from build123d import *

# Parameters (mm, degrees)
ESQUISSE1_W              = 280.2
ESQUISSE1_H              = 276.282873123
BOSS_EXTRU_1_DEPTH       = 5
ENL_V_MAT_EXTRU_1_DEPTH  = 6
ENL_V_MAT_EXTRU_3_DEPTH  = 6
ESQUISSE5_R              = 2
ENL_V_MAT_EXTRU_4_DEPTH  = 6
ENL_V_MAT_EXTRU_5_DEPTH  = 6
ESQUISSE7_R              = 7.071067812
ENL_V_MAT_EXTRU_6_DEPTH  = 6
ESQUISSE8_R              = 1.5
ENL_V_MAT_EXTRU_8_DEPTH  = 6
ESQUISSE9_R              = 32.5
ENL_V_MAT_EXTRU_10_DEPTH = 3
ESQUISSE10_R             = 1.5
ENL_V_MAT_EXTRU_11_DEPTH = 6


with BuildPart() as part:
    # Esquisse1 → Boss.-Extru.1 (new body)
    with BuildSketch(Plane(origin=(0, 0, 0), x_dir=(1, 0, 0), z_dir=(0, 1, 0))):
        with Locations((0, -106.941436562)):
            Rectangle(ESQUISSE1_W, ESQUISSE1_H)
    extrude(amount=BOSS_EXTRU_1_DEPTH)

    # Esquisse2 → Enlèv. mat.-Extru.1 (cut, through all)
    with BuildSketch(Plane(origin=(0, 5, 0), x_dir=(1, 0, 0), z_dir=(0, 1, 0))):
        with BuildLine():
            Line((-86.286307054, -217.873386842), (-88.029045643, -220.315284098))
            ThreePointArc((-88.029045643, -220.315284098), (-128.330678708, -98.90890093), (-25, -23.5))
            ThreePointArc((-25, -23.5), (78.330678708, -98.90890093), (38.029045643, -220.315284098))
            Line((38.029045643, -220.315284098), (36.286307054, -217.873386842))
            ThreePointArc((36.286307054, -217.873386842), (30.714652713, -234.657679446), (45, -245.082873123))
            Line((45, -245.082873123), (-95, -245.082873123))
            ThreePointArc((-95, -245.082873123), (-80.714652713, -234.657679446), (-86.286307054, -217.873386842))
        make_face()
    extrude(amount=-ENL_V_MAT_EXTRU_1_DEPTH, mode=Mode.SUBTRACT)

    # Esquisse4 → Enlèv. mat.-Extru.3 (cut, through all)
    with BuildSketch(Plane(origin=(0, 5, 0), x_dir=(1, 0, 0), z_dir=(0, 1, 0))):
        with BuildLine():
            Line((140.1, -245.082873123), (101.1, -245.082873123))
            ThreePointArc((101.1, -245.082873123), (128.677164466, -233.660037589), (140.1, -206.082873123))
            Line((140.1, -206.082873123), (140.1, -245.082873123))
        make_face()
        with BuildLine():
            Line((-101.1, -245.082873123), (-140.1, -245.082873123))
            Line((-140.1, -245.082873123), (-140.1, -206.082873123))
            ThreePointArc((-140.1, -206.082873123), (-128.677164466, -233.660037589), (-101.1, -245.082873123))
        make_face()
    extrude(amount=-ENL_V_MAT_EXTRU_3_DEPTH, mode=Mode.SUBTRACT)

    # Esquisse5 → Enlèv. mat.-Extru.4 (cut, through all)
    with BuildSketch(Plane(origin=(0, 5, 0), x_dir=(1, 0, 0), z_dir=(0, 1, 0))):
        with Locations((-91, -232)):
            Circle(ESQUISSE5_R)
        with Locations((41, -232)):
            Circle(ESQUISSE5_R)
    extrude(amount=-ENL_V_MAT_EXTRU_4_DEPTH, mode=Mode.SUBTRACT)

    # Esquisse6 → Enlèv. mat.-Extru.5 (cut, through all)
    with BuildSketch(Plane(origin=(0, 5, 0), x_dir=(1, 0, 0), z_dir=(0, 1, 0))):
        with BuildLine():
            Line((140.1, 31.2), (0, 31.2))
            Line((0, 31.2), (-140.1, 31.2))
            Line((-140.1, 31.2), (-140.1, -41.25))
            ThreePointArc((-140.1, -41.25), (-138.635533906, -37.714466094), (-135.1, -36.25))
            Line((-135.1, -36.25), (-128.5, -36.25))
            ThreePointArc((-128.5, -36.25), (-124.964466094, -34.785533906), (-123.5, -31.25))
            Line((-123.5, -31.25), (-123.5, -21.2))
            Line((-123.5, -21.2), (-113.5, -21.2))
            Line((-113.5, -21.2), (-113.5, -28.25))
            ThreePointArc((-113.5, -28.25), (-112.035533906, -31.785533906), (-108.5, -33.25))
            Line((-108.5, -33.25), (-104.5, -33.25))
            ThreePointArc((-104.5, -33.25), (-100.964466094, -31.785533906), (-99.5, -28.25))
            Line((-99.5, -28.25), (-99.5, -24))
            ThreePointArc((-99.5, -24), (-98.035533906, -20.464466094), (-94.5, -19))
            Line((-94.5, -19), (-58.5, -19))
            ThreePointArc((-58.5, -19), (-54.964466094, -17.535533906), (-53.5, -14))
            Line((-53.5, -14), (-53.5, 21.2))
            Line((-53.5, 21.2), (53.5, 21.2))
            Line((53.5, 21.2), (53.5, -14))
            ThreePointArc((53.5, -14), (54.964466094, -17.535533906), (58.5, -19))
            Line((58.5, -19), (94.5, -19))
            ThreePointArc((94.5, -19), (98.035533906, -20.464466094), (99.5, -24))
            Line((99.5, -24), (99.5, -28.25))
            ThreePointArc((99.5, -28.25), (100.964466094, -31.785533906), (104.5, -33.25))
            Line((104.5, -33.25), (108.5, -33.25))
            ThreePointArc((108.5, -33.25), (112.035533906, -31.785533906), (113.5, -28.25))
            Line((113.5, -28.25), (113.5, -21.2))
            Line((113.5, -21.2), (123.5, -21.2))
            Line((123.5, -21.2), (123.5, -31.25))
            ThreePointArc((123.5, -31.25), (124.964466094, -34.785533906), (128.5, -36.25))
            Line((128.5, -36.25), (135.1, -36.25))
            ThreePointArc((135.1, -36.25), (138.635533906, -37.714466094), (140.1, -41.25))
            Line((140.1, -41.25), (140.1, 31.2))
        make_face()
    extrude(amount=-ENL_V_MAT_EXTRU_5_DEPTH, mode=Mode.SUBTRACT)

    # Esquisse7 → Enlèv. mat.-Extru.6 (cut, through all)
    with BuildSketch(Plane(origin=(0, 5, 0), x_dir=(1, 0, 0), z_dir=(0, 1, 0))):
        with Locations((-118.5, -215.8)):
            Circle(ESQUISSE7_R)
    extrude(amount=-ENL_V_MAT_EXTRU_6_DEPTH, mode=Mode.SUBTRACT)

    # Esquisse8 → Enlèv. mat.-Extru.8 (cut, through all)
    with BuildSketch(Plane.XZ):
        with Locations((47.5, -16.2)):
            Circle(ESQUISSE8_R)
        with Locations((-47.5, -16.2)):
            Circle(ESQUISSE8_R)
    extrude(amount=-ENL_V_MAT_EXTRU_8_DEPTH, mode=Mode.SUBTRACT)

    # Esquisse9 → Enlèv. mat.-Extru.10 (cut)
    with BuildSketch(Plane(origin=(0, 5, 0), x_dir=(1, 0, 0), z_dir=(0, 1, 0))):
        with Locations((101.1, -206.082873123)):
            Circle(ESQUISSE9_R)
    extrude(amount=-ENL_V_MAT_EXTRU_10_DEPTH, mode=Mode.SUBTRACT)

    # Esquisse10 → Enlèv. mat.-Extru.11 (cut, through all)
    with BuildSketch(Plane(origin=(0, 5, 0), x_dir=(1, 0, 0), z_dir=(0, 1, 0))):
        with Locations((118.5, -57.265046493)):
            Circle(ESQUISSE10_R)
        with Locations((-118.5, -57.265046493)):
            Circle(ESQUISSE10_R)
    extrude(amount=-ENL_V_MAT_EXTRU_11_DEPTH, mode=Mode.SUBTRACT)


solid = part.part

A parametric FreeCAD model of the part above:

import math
import FreeCAD as App
import Part
import Sketcher

V = App.Vector
Q = App.Units.Quantity


def add_polygon(sketch, points):
    """Adds a closed chain of lines whose ends are joined by coincident constraints."""
    first, n = sketch.GeometryCount, len(points)
    for a, b in zip(points, points[1:] + points[:1]):
        sketch.addGeometry(Part.LineSegment(App.Vector(*a, 0), App.Vector(*b, 0)), False)
    for i in range(n):
        sketch.addConstraint(Sketcher.Constraint("Coincident", first + i, 2, first + (i + 1) % n, 1))

doc = App.newDocument("Part")
params = doc.addObject("Spreadsheet::Sheet", "Params")
for row, (alias, value) in enumerate([
    ("sketch1_width", "280.2 mm"),
    ("pad1_length", "5 mm"),
    ("sketch2_radius", "15 mm"),
    ("sketch2_radius2", "108.5 mm"),
    ("sketch2_width", "140 mm"),
    ("sketch2_length", "3 mm"),
    ("sketch3_radius", "39 mm"),
    ("sketch4_diameter", "4 mm"),
    ("sketch5_radius", "5 mm"),
    ("sketch5_width", "10 mm"),
    ("sketch5_width2", "4 mm"),
    ("sketch5_width3", "36 mm"),
    ("sketch5_width4", "107 mm"),
    ("sketch7_diameter", "3 mm"),
    ("sketch8_diameter", "65 mm"),
    ("pocket7_length", "3 mm"),
    ("sketch9_diameter", "3 mm"),
], start=1):
    params.set(f"A{row}", alias)
    params.set(f"B{row}", "=" + value)
    params.setAlias(f"B{row}", alias)

body = doc.addObject("PartDesign::Body", "Body")

# Sketch on XZ plane
sketch1 = doc.addObject("Sketcher::SketchObject", "Sketch")
body.addObject(sketch1)
sketch1.AttachmentSupport = (doc.XZ_Plane, [""])
sketch1.MapMode = "FlatFace"
add_polygon(sketch1, [(-140.1, -31.2), (-140.1, 245.082873), (140.1, 245.082873), (140.1, -31.2)])  # lines 0-3
sketch1.addConstraint([
    Sketcher.Constraint("Vertical", 0),
    Sketcher.Constraint("Horizontal", 1),
    Sketcher.Constraint("Vertical", 2),
    Sketcher.Constraint("Horizontal", 3),
    Sketcher.Constraint("DistanceX", 1, 1, 1, 2, Q("280.2 mm")),
    Sketcher.Constraint("DistanceX", 0, 2, -1, 1, Q("140.1 mm")),
    Sketcher.Constraint("DistanceY", 2, 2, -1, 1, Q("31.2 mm")),
    Sketcher.Constraint("DistanceY", 0, 1, 0, 2, Q("276.282873 mm")),
])
sketch1.setExpression("Constraints[8]", "Params.sketch1_width")
pad1 = doc.addObject("PartDesign::Pad", "Pad")
body.addObject(pad1)
pad1.Profile = sketch1
pad1.setExpression("Length", "Params.pad1_length")
pad1.Reversed = True

# Sketch on XZ plane
sketch2 = doc.addObject("Sketcher::SketchObject", "Sketch001")
body.addObject(sketch2)
sketch2.AttachmentSupport = (doc.XZ_Plane, [""])
sketch2.MapMode = "FlatFace"
sketch2.AttachmentOffset = App.Placement(V(0, 0, -5), App.Rotation())
sketch2.addGeometry([
    Part.LineSegment(V(-88.029046, 220.315284, 0), V(-86.286307, 217.873387, 0)),  # 0
    Part.ArcOfCircle(Part.Circle(V(-95, 230.082873, 0), V(0, 0, 1), 15), math.radians(-54.485226), math.radians(90)),  # 1
    Part.LineSegment(V(-95, 245.082873, 0), V(45, 245.082873, 0)),  # 2
    Part.ArcOfCircle(Part.Circle(V(45, 230.082873, 0), V(0, 0, 1), 15), math.radians(90), math.radians(234.485226)),  # 3
    Part.LineSegment(V(36.286307, 217.873387, 0), V(38.029046, 220.315284, 0)),  # 4
    Part.ArcOfCircle(Part.Circle(V(-25, 132, 0), V(0, 0, 1), 108.5), math.radians(-90), math.radians(54.485226)),  # 5
    Part.ArcOfCircle(Part.Circle(V(-25, 132, 0), V(0, 0, 1), 108.5), math.radians(125.514774), math.radians(270)),  # 6
], False)
sketch2.addConstraint([
    Sketcher.Constraint("Coincident", 0, 2, 1, 1),
    Sketcher.Constraint("Tangent", 1, 2, 2, 1),
    Sketcher.Constraint("Tangent", 2, 2, 3, 1),
    Sketcher.Constraint("Coincident", 3, 2, 4, 1),
    Sketcher.Constraint("Coincident", 4, 2, 5, 2),
    Sketcher.Constraint("Tangent", 5, 1, 6, 2),
    Sketcher.Constraint("Coincident", 6, 1, 0, 1),
    Sketcher.Constraint("Horizontal", 2),
    Sketcher.Constraint("Equal", 1, 3),
    Sketcher.Constraint("Equal", 5, 6),
    Sketcher.Constraint("Horizontal", 0, 2, 3, 2),
    Sketcher.Constraint("Horizontal", 4, 2, 6, 1),
    Sketcher.Constraint("Vertical", 6, 3, 5, 1),
    Sketcher.Constraint("Equal", 0, 4),
    Sketcher.Constraint("Radius", 1, Q("15 mm")),
    Sketcher.Constraint("Radius", 5, Q("108.5 mm")),
    Sketcher.Constraint("DistanceX", 2, 1, 2, 2, Q("140 mm")),
    Sketcher.Constraint("Distance", 0, Q("3 mm")),
    Sketcher.Constraint("DistanceX", 1, 3, -1, 1, Q("95 mm")),
    Sketcher.Constraint("DistanceY", -1, 1, 5, 3, Q("132 mm")),
    Sketcher.Constraint("DistanceX", 3, 2, 4, 2, Q("1.742739 mm")),
    Sketcher.Constraint("DistanceY", 4, 2, 3, 3, Q("9.767589 mm")),
])
sketch2.setExpression("Constraints[14]", "Params.sketch2_radius")
sketch2.setExpression("Constraints[15]", "Params.sketch2_radius2")
sketch2.setExpression("Constraints[16]", "Params.sketch2_width")
sketch2.setExpression("Constraints[17]", "Params.sketch2_length")
pocket1 = doc.addObject("PartDesign::Pocket", "Pocket")
body.addObject(pocket1)
pocket1.Profile = sketch2
pocket1.Type = "ThroughAll"
pocket1.Reversed = True

# Sketch on XZ plane
sketch3 = doc.addObject("Sketcher::SketchObject", "Sketch002")
body.addObject(sketch3)
sketch3.AttachmentSupport = (doc.XZ_Plane, [""])
sketch3.MapMode = "FlatFace"
sketch3.AttachmentOffset = App.Placement(V(0, 0, -5), App.Rotation())
sketch3.addGeometry([
    Part.LineSegment(V(101.1, 245.082873, 0), V(140.1, 245.082873, 0)),  # 0
    Part.LineSegment(V(140.1, 245.082873, 0), V(140.1, 206.082873, 0)),  # 1
    Part.ArcOfCircle(Part.Circle(V(101.1, 206.082873, 0), V(0, 0, 1), 39), math.radians(0), math.radians(90)),  # 2
    Part.LineSegment(V(-140.1, 245.082873, 0), V(-101.1, 245.082873, 0)),  # 3
    Part.ArcOfCircle(Part.Circle(V(-101.1, 206.082873, 0), V(0, 0, 1), 39), math.radians(90), math.radians(180)),  # 4
    Part.LineSegment(V(-140.1, 206.082873, 0), V(-140.1, 245.082873, 0)),  # 5
], False)
sketch3.addConstraint([
    Sketcher.Constraint("Coincident", 0, 2, 1, 1),
    Sketcher.Constraint("Tangent", 1, 2, 2, 1),
    Sketcher.Constraint("Tangent", 2, 2, 0, 1),
    Sketcher.Constraint("Tangent", 3, 2, 4, 1),
    Sketcher.Constraint("Tangent", 4, 2, 5, 1),
    Sketcher.Constraint("Coincident", 5, 2, 3, 1),
    Sketcher.Constraint("Horizontal", 0),
    Sketcher.Constraint("Vertical", 1),
    Sketcher.Constraint("Horizontal", 3),
    Sketcher.Constraint("Vertical", 5),
    Sketcher.Constraint("Equal", 2, 4),
    Sketcher.Constraint("Symmetric", 2, 3, 4, 3, -2),
    Sketcher.Constraint("Radius", 2, Q("39 mm")),
    Sketcher.Constraint("DistanceX", -1, 1, 2, 3, Q("101.1 mm")),
    Sketcher.Constraint("DistanceY", -1, 1, 2, 3, Q("206.082873 mm")),
])
sketch3.setExpression("Constraints[12]", "Params.sketch3_radius")
pocket2 = doc.addObject("PartDesign::Pocket", "Pocket001")
body.addObject(pocket2)
pocket2.Profile = sketch3
pocket2.Type = "ThroughAll"
pocket2.Reversed = True

# Sketch on XZ plane
sketch4 = doc.addObject("Sketcher::SketchObject", "Sketch003")
body.addObject(sketch4)
sketch4.AttachmentSupport = (doc.XZ_Plane, [""])
sketch4.MapMode = "FlatFace"
sketch4.AttachmentOffset = App.Placement(V(0, 0, -5), App.Rotation())
sketch4.addGeometry([
    Part.Circle(V(-91, 232, 0), V(0, 0, 1), 2),
    Part.Circle(V(41, 232, 0), V(0, 0, 1), 2),
], False)
sketch4.addConstraint([
    Sketcher.Constraint("Equal", 0, 1),
    Sketcher.Constraint("Horizontal", 0, 3, 1, 3),
    Sketcher.Constraint("Diameter", 0, Q("4 mm")),
    Sketcher.Constraint("DistanceX", 0, 3, -1, 1, Q("91 mm")),
    Sketcher.Constraint("DistanceY", -1, 1, 0, 3, Q("232 mm")),
    Sketcher.Constraint("DistanceX", -1, 1, 1, 3, Q("41 mm")),
])
sketch4.setExpression("Constraints[2]", "Params.sketch4_diameter")
pocket3 = doc.addObject("PartDesign::Pocket", "Pocket002")
body.addObject(pocket3)
pocket3.Profile = sketch4
pocket3.Type = "ThroughAll"
pocket3.Reversed = True

# Sketch on XZ plane
sketch5 = doc.addObject("Sketcher::SketchObject", "Sketch004")
body.addObject(sketch5)
sketch5.AttachmentSupport = (doc.XZ_Plane, [""])
sketch5.MapMode = "FlatFace"
sketch5.AttachmentOffset = App.Placement(V(0, 0, -5), App.Rotation())
sketch5.addGeometry([
    Part.LineSegment(V(140.1, -31.2, 0), V(-140.1, -31.2, 0)),  # 0
    Part.LineSegment(V(-140.1, -31.2, 0), V(-140.1, 41.25, 0)),  # 1
    Part.ArcOfCircle(Part.Circle(V(-135.1, 41.25, 0), V(0, 0, 1), 5), math.radians(180), math.radians(270)),  # 2
    Part.LineSegment(V(-135.1, 36.25, 0), V(-128.5, 36.25, 0)),  # 3
    Part.ArcOfCircle(Part.Circle(V(-128.5, 31.25, 0), V(0, 0, 1), 5), math.radians(0), math.radians(90)),  # 4
    Part.LineSegment(V(-123.5, 31.25, 0), V(-123.5, 21.2, 0)),  # 5
    Part.LineSegment(V(-123.5, 21.2, 0), V(-113.5, 21.2, 0)),  # 6
    Part.LineSegment(V(-113.5, 21.2, 0), V(-113.5, 28.25, 0)),  # 7
    Part.ArcOfCircle(Part.Circle(V(-108.5, 28.25, 0), V(0, 0, 1), 5), math.radians(90), math.radians(180)),  # 8
    Part.LineSegment(V(-108.5, 33.25, 0), V(-104.5, 33.25, 0)),  # 9
    Part.ArcOfCircle(Part.Circle(V(-104.5, 28.25, 0), V(0, 0, 1), 5), math.radians(0), math.radians(90)),  # 10
    Part.LineSegment(V(-99.5, 28.25, 0), V(-99.5, 24, 0)),  # 11
    Part.ArcOfCircle(Part.Circle(V(-94.5, 24, 0), V(0, 0, 1), 5), math.radians(180), math.radians(270)),  # 12
    Part.LineSegment(V(-94.5, 19, 0), V(-58.5, 19, 0)),  # 13
    Part.ArcOfCircle(Part.Circle(V(-58.5, 14, 0), V(0, 0, 1), 5), math.radians(0), math.radians(90)),  # 14
    Part.LineSegment(V(-53.5, 14, 0), V(-53.5, -21.2, 0)),  # 15
    Part.LineSegment(V(-53.5, -21.2, 0), V(53.5, -21.2, 0)),  # 16
    Part.LineSegment(V(53.5, -21.2, 0), V(53.5, 14, 0)),  # 17
    Part.ArcOfCircle(Part.Circle(V(58.5, 14, 0), V(0, 0, 1), 5), math.radians(90), math.radians(180)),  # 18
    Part.LineSegment(V(58.5, 19, 0), V(94.5, 19, 0)),  # 19
    Part.ArcOfCircle(Part.Circle(V(94.5, 24, 0), V(0, 0, 1), 5), math.radians(-90), math.radians(0)),  # 20
    Part.LineSegment(V(99.5, 24, 0), V(99.5, 28.25, 0)),  # 21
    Part.ArcOfCircle(Part.Circle(V(104.5, 28.25, 0), V(0, 0, 1), 5), math.radians(90), math.radians(180)),  # 22
    Part.LineSegment(V(104.5, 33.25, 0), V(108.5, 33.25, 0)),  # 23
    Part.ArcOfCircle(Part.Circle(V(108.5, 28.25, 0), V(0, 0, 1), 5), math.radians(0), math.radians(90)),  # 24
    Part.LineSegment(V(113.5, 28.25, 0), V(113.5, 21.2, 0)),  # 25
    Part.LineSegment(V(113.5, 21.2, 0), V(123.5, 21.2, 0)),  # 26
    Part.LineSegment(V(123.5, 21.2, 0), V(123.5, 31.25, 0)),  # 27
    Part.ArcOfCircle(Part.Circle(V(128.5, 31.25, 0), V(0, 0, 1), 5), math.radians(90), math.radians(180)),  # 28
    Part.LineSegment(V(128.5, 36.25, 0), V(135.1, 36.25, 0)),  # 29
    Part.ArcOfCircle(Part.Circle(V(135.1, 41.25, 0), V(0, 0, 1), 5), math.radians(-90), math.radians(0)),  # 30
    Part.LineSegment(V(140.1, 41.25, 0), V(140.1, -31.2, 0)),  # 31
], False)
sketch5.addConstraint([
    Sketcher.Constraint("Coincident", 0, 2, 1, 1),
    Sketcher.Constraint("Tangent", 1, 2, 2, 1),
    Sketcher.Constraint("Tangent", 2, 2, 3, 1),
    Sketcher.Constraint("Tangent", 3, 2, 4, 2),
    Sketcher.Constraint("Tangent", 4, 1, 5, 1),
    Sketcher.Constraint("Coincident", 5, 2, 6, 1),
    Sketcher.Constraint("Coincident", 6, 2, 7, 1),
    Sketcher.Constraint("Tangent", 7, 2, 8, 2),
    Sketcher.Constraint("Tangent", 8, 1, 9, 1),
    Sketcher.Constraint("Tangent", 9, 2, 10, 2),
    Sketcher.Constraint("Tangent", 10, 1, 11, 1),
    Sketcher.Constraint("Tangent", 11, 2, 12, 1),
    Sketcher.Constraint("Tangent", 12, 2, 13, 1),
    Sketcher.Constraint("Tangent", 13, 2, 14, 2),
    Sketcher.Constraint("Tangent", 14, 1, 15, 1),
    Sketcher.Constraint("Coincident", 15, 2, 16, 1),
    Sketcher.Constraint("Coincident", 16, 2, 17, 1),
    Sketcher.Constraint("Tangent", 17, 2, 18, 2),
    Sketcher.Constraint("Tangent", 18, 1, 19, 1),
    Sketcher.Constraint("Tangent", 19, 2, 20, 1),
    Sketcher.Constraint("Tangent", 20, 2, 21, 1),
    Sketcher.Constraint("Tangent", 21, 2, 22, 2),
    Sketcher.Constraint("Tangent", 22, 1, 23, 1),
    Sketcher.Constraint("Tangent", 23, 2, 24, 2),
    Sketcher.Constraint("Tangent", 24, 1, 25, 1),
    Sketcher.Constraint("Coincident", 25, 2, 26, 1),
    Sketcher.Constraint("Coincident", 26, 2, 27, 1),
    Sketcher.Constraint("Tangent", 27, 2, 28, 2),
    Sketcher.Constraint("Tangent", 28, 1, 29, 1),
    Sketcher.Constraint("Tangent", 29, 2, 30, 1),
    Sketcher.Constraint("Tangent", 30, 2, 31, 1),
    Sketcher.Constraint("Coincident", 31, 2, 0, 1),
    Sketcher.Constraint("Horizontal", 0),
    Sketcher.Constraint("Vertical", 1),
    Sketcher.Constraint("Horizontal", 3),
    Sketcher.Constraint("Vertical", 5),
    Sketcher.Constraint("Horizontal", 6),
    Sketcher.Constraint("Vertical", 7),
    Sketcher.Constraint("Horizontal", 9),
    Sketcher.Constraint("Vertical", 11),
    Sketcher.Constraint("Horizontal", 13),
    Sketcher.Constraint("Vertical", 15),
    Sketcher.Constraint("Horizontal", 16),
    Sketcher.Constraint("Vertical", 17),
    Sketcher.Constraint("Horizontal", 19),
    Sketcher.Constraint("Vertical", 21),
    Sketcher.Constraint("Horizontal", 23),
    Sketcher.Constraint("Vertical", 25),
    Sketcher.Constraint("Horizontal", 26),
    Sketcher.Constraint("Vertical", 27),
    Sketcher.Constraint("Horizontal", 29),
    Sketcher.Constraint("Vertical", 31),
    Sketcher.Constraint("Equal", 2, 4),
    Sketcher.Constraint("Equal", 4, 8),
    Sketcher.Constraint("Equal", 8, 10),
    Sketcher.Constraint("Equal", 10, 12),
    Sketcher.Constraint("Equal", 12, 14),
    Sketcher.Constraint("Equal", 14, 18),
    Sketcher.Constraint("Equal", 18, 20),
    Sketcher.Constraint("Equal", 20, 22),
    Sketcher.Constraint("Equal", 22, 24),
    Sketcher.Constraint("Equal", 24, 28),
    Sketcher.Constraint("Equal", 28, 30),
    Sketcher.Constraint("Symmetric", 14, 3, 18, 3, -2),
    Sketcher.Constraint("Symmetric", 10, 3, 22, 3, -2),
    Sketcher.Constraint("Symmetric", 4, 3, 28, 3, -2),
    Sketcher.Constraint("Symmetric", 6, 2, 25, 2, -2),
    Sketcher.Constraint("Equal", 3, 29),
    Sketcher.Constraint("Radius", 2, Q("5 mm")),
    Sketcher.Constraint("DistanceX", 6, 1, 6, 2, Q("10 mm")),
    Sketcher.Constraint("DistanceX", 9, 1, 9, 2, Q("4 mm")),
    Sketcher.Constraint("DistanceX", 13, 1, 13, 2, Q("36 mm")),
    Sketcher.Constraint("DistanceX", 16, 1, 16, 2, Q("107 mm")),
    Sketcher.Constraint("DistanceX", 0, 2, 0, 1, Q("280.2 mm")),
    Sketcher.Constraint("DistanceY", 15, 2, 15, 1, Q("35.2 mm")),
    Sketcher.Constraint("DistanceY", -1, 1, 12, 3, Q("24 mm")),
    Sketcher.Constraint("DistanceY", 8, 3, 4, 3, Q("3 mm")),
    Sketcher.Constraint("DistanceY", 1, 1, 1, 2, Q("72.45 mm")),
    Sketcher.Constraint("DistanceY", 5, 2, 5, 1, Q("10.05 mm")),
    Sketcher.Constraint("DistanceY", 11, 2, 11, 1, Q("4.25 mm")),
])
sketch5.setExpression("Constraints[68]", "Params.sketch5_radius")
sketch5.setExpression("Constraints[69]", "Params.sketch5_width")
sketch5.setExpression("Constraints[70]", "Params.sketch5_width2")
sketch5.setExpression("Constraints[71]", "Params.sketch5_width3")
sketch5.setExpression("Constraints[72]", "Params.sketch5_width4")
pocket4 = doc.addObject("PartDesign::Pocket", "Pocket003")
body.addObject(pocket4)
pocket4.Profile = sketch5
pocket4.Type = "ThroughAll"
pocket4.Reversed = True

# Sketch on XZ plane
sketch6 = doc.addObject("Sketcher::SketchObject", "Sketch005")
body.addObject(sketch6)
sketch6.AttachmentSupport = (doc.XZ_Plane, [""])
sketch6.MapMode = "FlatFace"
sketch6.AttachmentOffset = App.Placement(V(0, 0, -5), App.Rotation())
sketch6.addGeometry(Part.Circle(V(-118.5, 215.8, 0), V(0, 0, 1), 7.071068), False)
sketch6.addConstraint([
    Sketcher.Constraint("DistanceX", 0, 3, -1, 1, Q("118.5 mm")),
    Sketcher.Constraint("DistanceY", -1, 1, 0, 3, Q("215.8 mm")),
    Sketcher.Constraint("Diameter", 0, Q("14.142136 mm")),
])
pocket5 = doc.addObject("PartDesign::Pocket", "Pocket004")
body.addObject(pocket5)
pocket5.Profile = sketch6
pocket5.Type = "ThroughAll"
pocket5.Reversed = True

# Sketch on XZ plane
sketch7 = doc.addObject("Sketcher::SketchObject", "Sketch006")
body.addObject(sketch7)
sketch7.AttachmentSupport = (doc.XZ_Plane, [""])
sketch7.MapMode = "FlatFace"
sketch7.addGeometry([
    Part.Circle(V(47.5, -16.2, 0), V(0, 0, 1), 1.5),
    Part.Circle(V(-47.5, -16.2, 0), V(0, 0, 1), 1.5),
], False)
sketch7.addConstraint([
    Sketcher.Constraint("Equal", 0, 1),
    Sketcher.Constraint("Symmetric", 0, 3, 1, 3, -2),
    Sketcher.Constraint("Diameter", 0, Q("3 mm")),
    Sketcher.Constraint("DistanceX", 1, 3, 0, 3, Q("95 mm")),
    Sketcher.Constraint("DistanceY", 0, 3, -1, 1, Q("16.2 mm")),
])
sketch7.setExpression("Constraints[2]", "Params.sketch7_diameter")
pocket6 = doc.addObject("PartDesign::Pocket", "Pocket005")
body.addObject(pocket6)
pocket6.Profile = sketch7
pocket6.Type = "ThroughAll"

# Sketch on XZ plane
sketch8 = doc.addObject("Sketcher::SketchObject", "Sketch007")
body.addObject(sketch8)
sketch8.AttachmentSupport = (doc.XZ_Plane, [""])
sketch8.MapMode = "FlatFace"
sketch8.AttachmentOffset = App.Placement(V(0, 0, -5), App.Rotation())
sketch8.addGeometry(Part.Circle(V(101.1, 206.082873, 0), V(0, 0, 1), 32.5), False)
sketch8.addConstraint([
    Sketcher.Constraint("Diameter", 0, Q("65 mm")),
    Sketcher.Constraint("DistanceX", -1, 1, 0, 3, Q("101.1 mm")),
    Sketcher.Constraint("DistanceY", -1, 1, 0, 3, Q("206.082873 mm")),
])
sketch8.setExpression("Constraints[0]", "Params.sketch8_diameter")
pocket7 = doc.addObject("PartDesign::Pocket", "Pocket006")
body.addObject(pocket7)
pocket7.Profile = sketch8
pocket7.setExpression("Length", "Params.pocket7_length")
pocket7.Reversed = True

# Sketch on XZ plane
sketch9 = doc.addObject("Sketcher::SketchObject", "Sketch008")
body.addObject(sketch9)
sketch9.AttachmentSupport = (doc.XZ_Plane, [""])
sketch9.MapMode = "FlatFace"
sketch9.AttachmentOffset = App.Placement(V(0, 0, -5), App.Rotation())
sketch9.addGeometry([
    Part.Circle(V(118.5, 57.265046, 0), V(0, 0, 1), 1.5),
    Part.Circle(V(-118.5, 57.265046, 0), V(0, 0, 1), 1.5),
], False)
sketch9.addConstraint([
    Sketcher.Constraint("Equal", 0, 1),
    Sketcher.Constraint("Symmetric", 0, 3, 1, 3, -2),
    Sketcher.Constraint("Diameter", 0, Q("3 mm")),
    Sketcher.Constraint("DistanceX", 1, 3, 0, 3, Q("237 mm")),
    Sketcher.Constraint("DistanceY", -1, 1, 0, 3, Q("57.265046 mm")),
])
sketch9.setExpression("Constraints[2]", "Params.sketch9_diameter")
pocket8 = doc.addObject("PartDesign::Pocket", "Pocket007")
body.addObject(pocket8)
pocket8.Profile = sketch9
pocket8.Type = "ThroughAll"
pocket8.Reversed = True

doc.recompute()
